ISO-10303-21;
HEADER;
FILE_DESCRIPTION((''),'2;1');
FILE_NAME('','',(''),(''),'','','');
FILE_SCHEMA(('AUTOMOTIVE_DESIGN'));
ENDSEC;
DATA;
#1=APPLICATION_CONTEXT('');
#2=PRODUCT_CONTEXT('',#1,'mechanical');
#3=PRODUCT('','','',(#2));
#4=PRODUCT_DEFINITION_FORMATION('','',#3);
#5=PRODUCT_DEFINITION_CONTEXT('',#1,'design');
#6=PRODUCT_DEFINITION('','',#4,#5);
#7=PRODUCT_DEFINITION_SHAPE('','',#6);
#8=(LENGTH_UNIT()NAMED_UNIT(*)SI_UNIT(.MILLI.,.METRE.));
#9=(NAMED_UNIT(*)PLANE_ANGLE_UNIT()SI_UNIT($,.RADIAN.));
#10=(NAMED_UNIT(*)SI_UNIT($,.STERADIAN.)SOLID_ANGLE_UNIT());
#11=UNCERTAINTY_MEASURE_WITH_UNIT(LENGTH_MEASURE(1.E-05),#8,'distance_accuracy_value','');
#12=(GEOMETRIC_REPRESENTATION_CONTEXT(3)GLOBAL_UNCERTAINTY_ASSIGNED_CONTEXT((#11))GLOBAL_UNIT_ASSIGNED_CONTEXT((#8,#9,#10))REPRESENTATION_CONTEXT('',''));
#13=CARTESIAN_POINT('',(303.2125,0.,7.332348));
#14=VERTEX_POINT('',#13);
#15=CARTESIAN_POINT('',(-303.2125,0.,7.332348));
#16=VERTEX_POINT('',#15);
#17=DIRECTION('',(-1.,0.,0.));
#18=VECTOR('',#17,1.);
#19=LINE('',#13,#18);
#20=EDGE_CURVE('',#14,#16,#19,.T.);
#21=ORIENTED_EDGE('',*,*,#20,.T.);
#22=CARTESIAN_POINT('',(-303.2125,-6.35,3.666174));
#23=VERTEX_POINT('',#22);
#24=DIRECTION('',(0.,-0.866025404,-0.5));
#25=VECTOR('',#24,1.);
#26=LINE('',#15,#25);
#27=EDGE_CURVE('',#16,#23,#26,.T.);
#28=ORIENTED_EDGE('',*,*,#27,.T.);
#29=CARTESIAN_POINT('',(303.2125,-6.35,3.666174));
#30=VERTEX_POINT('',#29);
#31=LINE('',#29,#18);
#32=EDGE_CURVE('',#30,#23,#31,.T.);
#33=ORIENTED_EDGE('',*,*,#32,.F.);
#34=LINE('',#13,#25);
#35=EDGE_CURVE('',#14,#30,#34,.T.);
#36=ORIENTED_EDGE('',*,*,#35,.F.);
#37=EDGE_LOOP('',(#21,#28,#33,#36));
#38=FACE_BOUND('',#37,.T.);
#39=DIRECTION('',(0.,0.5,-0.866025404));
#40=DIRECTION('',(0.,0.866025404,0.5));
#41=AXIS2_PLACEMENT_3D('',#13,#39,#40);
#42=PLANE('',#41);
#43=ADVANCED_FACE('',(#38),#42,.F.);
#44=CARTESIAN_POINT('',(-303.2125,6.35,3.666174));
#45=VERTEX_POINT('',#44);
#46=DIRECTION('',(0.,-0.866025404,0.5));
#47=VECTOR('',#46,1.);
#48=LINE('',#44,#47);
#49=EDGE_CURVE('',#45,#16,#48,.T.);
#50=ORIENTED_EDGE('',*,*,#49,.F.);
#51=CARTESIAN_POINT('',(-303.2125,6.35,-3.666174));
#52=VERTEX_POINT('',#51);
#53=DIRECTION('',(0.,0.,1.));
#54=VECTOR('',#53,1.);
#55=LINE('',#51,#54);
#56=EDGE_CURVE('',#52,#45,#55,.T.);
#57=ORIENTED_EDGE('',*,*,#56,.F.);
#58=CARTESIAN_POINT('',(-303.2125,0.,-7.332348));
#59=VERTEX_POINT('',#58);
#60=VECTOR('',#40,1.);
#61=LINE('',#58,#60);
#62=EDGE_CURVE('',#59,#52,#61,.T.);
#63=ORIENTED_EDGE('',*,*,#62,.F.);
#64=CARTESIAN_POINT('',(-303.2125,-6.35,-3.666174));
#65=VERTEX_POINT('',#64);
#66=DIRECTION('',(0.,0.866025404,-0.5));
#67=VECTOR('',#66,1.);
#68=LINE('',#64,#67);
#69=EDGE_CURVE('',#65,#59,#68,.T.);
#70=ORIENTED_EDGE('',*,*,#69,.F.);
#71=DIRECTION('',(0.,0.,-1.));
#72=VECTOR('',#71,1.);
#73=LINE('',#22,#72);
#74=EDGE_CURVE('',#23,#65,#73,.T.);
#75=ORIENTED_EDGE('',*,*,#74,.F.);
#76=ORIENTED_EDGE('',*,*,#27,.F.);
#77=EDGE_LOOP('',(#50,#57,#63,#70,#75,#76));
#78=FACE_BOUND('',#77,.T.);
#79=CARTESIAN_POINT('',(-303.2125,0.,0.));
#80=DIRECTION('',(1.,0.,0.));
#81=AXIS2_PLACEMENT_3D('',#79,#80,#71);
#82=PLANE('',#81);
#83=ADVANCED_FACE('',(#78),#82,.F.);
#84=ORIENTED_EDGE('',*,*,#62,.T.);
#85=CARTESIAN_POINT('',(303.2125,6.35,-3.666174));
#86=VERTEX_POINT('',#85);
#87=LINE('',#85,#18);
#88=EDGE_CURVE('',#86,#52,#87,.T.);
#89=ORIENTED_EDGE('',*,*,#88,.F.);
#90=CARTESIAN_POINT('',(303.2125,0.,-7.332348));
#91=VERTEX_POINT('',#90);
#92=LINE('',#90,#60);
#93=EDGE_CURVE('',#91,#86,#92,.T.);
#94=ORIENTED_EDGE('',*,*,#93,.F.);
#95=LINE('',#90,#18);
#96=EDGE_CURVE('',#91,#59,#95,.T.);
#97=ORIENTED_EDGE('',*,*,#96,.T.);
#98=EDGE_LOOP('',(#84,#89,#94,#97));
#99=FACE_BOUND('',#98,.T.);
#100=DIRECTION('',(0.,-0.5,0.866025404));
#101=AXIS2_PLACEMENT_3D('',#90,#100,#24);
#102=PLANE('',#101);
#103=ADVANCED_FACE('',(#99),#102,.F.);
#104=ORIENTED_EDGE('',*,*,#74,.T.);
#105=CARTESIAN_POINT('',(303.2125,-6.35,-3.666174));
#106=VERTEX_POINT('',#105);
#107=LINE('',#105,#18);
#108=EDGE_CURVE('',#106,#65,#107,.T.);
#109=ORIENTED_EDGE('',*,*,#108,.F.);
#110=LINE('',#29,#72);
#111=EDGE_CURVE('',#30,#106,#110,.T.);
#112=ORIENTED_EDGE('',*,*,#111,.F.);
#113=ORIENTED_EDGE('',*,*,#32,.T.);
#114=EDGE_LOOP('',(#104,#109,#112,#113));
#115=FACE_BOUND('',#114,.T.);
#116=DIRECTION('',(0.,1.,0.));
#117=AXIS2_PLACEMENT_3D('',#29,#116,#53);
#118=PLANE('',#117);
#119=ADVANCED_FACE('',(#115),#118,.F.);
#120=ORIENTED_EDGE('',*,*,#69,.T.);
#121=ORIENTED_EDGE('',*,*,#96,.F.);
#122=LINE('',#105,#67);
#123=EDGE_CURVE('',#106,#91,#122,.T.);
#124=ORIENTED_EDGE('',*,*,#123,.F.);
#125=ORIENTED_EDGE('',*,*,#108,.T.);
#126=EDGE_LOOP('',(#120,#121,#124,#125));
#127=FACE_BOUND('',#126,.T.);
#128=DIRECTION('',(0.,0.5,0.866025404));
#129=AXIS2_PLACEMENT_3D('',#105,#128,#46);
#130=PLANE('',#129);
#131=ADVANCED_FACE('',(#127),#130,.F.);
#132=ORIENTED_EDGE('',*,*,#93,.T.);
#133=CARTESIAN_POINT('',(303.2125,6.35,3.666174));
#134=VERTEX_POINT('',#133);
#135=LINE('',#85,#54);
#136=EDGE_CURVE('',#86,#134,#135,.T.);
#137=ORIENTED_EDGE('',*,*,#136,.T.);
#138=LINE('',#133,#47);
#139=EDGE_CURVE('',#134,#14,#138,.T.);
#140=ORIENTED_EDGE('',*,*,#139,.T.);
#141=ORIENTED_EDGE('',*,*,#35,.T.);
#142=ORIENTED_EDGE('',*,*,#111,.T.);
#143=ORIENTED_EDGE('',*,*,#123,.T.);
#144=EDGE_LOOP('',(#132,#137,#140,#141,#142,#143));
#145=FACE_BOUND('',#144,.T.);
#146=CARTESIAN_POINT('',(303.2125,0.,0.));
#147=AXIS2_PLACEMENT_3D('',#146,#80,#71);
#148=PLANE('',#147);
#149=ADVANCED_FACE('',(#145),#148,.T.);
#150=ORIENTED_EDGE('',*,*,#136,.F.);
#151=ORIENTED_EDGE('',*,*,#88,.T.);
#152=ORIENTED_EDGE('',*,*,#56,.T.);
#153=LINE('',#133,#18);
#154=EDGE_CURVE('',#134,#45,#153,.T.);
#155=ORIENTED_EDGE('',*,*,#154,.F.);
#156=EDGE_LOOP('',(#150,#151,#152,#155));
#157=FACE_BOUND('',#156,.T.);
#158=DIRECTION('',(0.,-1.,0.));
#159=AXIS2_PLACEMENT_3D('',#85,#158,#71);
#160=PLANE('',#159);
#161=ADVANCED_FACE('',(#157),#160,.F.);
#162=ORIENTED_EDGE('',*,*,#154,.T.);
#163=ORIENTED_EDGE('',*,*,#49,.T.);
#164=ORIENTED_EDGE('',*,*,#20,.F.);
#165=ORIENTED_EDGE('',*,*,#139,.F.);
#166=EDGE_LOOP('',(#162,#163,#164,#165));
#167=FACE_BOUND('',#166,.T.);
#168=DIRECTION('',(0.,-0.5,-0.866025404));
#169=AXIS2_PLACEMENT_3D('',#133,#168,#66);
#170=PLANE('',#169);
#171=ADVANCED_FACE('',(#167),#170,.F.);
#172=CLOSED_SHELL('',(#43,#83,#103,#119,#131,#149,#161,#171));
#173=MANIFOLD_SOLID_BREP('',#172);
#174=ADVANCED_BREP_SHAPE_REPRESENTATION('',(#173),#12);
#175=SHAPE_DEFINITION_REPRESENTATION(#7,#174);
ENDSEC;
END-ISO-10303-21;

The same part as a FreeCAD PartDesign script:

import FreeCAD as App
import Part
import Sketcher
Q = App.Units.Quantity


def add_polygon(sketch, points):
    """Adds a closed chain of lines whose ends are joined by coincident constraints."""
    first, n = sketch.GeometryCount, len(points)
    for a, b in zip(points, points[1:] + points[:1]):
        sketch.addGeometry(Part.LineSegment(App.Vector(*a, 0), App.Vector(*b, 0)), False)
    for i in range(n):
        sketch.addConstraint(Sketcher.Constraint("Coincident", first + i, 2, first + (i + 1) % n, 1))

doc = App.newDocument("Part")
body = doc.addObject("PartDesign::Body", "Body")

sketch1 = doc.addObject("Sketcher::SketchObject", "Sketch")
body.addObject(sketch1)
sketch1.AttachmentSupport = (doc.YZ_Plane, [""])
sketch1.MapMode = "FlatFace"
add_polygon(sketch1, [(0, -7), (6, -4), (6, 4), (0, 7), (-6, 4), (-6, -4)])
sketch1.addConstraint(Sketcher.Constraint("Vertical", 1))
sketch1.addConstraint(Sketcher.Constraint("Vertical", 4))
sketch1.addConstraint(Sketcher.Constraint("Symmetric", 0, 2, 3, 2, -1, 1))
sketch1.addConstraint(Sketcher.Constraint("Symmetric", 2, 2, 5, 2, -1, 1))
sketch1.addConstraint(Sketcher.Constraint("PointOnObject", 2, 2, -2))
sketch1.addConstraint(Sketcher.Constraint("Parallel", 2, 5))
sketch1.addConstraint(Sketcher.Constraint("Horizontal", 1, 2, 3, 2))
sketch1.addConstraint(Sketcher.Constraint("Angle", 0, Q("30 deg")))
sketch1.addConstraint(Sketcher.Constraint("DistanceX", 3, 2, 1, 2, Q("0.5 in")))
sketch1.addConstraint(Sketcher.Constraint("DistanceY", 1, 1, 1, 2, Q("7.332348 mm")))
pad1 = doc.addObject("PartDesign::Pad", "Pad")
body.addObject(pad1)
pad1.Profile = sketch1
pad1.Length = Q("23.875 in")
pad1.Midplane = True

doc.recompute()
